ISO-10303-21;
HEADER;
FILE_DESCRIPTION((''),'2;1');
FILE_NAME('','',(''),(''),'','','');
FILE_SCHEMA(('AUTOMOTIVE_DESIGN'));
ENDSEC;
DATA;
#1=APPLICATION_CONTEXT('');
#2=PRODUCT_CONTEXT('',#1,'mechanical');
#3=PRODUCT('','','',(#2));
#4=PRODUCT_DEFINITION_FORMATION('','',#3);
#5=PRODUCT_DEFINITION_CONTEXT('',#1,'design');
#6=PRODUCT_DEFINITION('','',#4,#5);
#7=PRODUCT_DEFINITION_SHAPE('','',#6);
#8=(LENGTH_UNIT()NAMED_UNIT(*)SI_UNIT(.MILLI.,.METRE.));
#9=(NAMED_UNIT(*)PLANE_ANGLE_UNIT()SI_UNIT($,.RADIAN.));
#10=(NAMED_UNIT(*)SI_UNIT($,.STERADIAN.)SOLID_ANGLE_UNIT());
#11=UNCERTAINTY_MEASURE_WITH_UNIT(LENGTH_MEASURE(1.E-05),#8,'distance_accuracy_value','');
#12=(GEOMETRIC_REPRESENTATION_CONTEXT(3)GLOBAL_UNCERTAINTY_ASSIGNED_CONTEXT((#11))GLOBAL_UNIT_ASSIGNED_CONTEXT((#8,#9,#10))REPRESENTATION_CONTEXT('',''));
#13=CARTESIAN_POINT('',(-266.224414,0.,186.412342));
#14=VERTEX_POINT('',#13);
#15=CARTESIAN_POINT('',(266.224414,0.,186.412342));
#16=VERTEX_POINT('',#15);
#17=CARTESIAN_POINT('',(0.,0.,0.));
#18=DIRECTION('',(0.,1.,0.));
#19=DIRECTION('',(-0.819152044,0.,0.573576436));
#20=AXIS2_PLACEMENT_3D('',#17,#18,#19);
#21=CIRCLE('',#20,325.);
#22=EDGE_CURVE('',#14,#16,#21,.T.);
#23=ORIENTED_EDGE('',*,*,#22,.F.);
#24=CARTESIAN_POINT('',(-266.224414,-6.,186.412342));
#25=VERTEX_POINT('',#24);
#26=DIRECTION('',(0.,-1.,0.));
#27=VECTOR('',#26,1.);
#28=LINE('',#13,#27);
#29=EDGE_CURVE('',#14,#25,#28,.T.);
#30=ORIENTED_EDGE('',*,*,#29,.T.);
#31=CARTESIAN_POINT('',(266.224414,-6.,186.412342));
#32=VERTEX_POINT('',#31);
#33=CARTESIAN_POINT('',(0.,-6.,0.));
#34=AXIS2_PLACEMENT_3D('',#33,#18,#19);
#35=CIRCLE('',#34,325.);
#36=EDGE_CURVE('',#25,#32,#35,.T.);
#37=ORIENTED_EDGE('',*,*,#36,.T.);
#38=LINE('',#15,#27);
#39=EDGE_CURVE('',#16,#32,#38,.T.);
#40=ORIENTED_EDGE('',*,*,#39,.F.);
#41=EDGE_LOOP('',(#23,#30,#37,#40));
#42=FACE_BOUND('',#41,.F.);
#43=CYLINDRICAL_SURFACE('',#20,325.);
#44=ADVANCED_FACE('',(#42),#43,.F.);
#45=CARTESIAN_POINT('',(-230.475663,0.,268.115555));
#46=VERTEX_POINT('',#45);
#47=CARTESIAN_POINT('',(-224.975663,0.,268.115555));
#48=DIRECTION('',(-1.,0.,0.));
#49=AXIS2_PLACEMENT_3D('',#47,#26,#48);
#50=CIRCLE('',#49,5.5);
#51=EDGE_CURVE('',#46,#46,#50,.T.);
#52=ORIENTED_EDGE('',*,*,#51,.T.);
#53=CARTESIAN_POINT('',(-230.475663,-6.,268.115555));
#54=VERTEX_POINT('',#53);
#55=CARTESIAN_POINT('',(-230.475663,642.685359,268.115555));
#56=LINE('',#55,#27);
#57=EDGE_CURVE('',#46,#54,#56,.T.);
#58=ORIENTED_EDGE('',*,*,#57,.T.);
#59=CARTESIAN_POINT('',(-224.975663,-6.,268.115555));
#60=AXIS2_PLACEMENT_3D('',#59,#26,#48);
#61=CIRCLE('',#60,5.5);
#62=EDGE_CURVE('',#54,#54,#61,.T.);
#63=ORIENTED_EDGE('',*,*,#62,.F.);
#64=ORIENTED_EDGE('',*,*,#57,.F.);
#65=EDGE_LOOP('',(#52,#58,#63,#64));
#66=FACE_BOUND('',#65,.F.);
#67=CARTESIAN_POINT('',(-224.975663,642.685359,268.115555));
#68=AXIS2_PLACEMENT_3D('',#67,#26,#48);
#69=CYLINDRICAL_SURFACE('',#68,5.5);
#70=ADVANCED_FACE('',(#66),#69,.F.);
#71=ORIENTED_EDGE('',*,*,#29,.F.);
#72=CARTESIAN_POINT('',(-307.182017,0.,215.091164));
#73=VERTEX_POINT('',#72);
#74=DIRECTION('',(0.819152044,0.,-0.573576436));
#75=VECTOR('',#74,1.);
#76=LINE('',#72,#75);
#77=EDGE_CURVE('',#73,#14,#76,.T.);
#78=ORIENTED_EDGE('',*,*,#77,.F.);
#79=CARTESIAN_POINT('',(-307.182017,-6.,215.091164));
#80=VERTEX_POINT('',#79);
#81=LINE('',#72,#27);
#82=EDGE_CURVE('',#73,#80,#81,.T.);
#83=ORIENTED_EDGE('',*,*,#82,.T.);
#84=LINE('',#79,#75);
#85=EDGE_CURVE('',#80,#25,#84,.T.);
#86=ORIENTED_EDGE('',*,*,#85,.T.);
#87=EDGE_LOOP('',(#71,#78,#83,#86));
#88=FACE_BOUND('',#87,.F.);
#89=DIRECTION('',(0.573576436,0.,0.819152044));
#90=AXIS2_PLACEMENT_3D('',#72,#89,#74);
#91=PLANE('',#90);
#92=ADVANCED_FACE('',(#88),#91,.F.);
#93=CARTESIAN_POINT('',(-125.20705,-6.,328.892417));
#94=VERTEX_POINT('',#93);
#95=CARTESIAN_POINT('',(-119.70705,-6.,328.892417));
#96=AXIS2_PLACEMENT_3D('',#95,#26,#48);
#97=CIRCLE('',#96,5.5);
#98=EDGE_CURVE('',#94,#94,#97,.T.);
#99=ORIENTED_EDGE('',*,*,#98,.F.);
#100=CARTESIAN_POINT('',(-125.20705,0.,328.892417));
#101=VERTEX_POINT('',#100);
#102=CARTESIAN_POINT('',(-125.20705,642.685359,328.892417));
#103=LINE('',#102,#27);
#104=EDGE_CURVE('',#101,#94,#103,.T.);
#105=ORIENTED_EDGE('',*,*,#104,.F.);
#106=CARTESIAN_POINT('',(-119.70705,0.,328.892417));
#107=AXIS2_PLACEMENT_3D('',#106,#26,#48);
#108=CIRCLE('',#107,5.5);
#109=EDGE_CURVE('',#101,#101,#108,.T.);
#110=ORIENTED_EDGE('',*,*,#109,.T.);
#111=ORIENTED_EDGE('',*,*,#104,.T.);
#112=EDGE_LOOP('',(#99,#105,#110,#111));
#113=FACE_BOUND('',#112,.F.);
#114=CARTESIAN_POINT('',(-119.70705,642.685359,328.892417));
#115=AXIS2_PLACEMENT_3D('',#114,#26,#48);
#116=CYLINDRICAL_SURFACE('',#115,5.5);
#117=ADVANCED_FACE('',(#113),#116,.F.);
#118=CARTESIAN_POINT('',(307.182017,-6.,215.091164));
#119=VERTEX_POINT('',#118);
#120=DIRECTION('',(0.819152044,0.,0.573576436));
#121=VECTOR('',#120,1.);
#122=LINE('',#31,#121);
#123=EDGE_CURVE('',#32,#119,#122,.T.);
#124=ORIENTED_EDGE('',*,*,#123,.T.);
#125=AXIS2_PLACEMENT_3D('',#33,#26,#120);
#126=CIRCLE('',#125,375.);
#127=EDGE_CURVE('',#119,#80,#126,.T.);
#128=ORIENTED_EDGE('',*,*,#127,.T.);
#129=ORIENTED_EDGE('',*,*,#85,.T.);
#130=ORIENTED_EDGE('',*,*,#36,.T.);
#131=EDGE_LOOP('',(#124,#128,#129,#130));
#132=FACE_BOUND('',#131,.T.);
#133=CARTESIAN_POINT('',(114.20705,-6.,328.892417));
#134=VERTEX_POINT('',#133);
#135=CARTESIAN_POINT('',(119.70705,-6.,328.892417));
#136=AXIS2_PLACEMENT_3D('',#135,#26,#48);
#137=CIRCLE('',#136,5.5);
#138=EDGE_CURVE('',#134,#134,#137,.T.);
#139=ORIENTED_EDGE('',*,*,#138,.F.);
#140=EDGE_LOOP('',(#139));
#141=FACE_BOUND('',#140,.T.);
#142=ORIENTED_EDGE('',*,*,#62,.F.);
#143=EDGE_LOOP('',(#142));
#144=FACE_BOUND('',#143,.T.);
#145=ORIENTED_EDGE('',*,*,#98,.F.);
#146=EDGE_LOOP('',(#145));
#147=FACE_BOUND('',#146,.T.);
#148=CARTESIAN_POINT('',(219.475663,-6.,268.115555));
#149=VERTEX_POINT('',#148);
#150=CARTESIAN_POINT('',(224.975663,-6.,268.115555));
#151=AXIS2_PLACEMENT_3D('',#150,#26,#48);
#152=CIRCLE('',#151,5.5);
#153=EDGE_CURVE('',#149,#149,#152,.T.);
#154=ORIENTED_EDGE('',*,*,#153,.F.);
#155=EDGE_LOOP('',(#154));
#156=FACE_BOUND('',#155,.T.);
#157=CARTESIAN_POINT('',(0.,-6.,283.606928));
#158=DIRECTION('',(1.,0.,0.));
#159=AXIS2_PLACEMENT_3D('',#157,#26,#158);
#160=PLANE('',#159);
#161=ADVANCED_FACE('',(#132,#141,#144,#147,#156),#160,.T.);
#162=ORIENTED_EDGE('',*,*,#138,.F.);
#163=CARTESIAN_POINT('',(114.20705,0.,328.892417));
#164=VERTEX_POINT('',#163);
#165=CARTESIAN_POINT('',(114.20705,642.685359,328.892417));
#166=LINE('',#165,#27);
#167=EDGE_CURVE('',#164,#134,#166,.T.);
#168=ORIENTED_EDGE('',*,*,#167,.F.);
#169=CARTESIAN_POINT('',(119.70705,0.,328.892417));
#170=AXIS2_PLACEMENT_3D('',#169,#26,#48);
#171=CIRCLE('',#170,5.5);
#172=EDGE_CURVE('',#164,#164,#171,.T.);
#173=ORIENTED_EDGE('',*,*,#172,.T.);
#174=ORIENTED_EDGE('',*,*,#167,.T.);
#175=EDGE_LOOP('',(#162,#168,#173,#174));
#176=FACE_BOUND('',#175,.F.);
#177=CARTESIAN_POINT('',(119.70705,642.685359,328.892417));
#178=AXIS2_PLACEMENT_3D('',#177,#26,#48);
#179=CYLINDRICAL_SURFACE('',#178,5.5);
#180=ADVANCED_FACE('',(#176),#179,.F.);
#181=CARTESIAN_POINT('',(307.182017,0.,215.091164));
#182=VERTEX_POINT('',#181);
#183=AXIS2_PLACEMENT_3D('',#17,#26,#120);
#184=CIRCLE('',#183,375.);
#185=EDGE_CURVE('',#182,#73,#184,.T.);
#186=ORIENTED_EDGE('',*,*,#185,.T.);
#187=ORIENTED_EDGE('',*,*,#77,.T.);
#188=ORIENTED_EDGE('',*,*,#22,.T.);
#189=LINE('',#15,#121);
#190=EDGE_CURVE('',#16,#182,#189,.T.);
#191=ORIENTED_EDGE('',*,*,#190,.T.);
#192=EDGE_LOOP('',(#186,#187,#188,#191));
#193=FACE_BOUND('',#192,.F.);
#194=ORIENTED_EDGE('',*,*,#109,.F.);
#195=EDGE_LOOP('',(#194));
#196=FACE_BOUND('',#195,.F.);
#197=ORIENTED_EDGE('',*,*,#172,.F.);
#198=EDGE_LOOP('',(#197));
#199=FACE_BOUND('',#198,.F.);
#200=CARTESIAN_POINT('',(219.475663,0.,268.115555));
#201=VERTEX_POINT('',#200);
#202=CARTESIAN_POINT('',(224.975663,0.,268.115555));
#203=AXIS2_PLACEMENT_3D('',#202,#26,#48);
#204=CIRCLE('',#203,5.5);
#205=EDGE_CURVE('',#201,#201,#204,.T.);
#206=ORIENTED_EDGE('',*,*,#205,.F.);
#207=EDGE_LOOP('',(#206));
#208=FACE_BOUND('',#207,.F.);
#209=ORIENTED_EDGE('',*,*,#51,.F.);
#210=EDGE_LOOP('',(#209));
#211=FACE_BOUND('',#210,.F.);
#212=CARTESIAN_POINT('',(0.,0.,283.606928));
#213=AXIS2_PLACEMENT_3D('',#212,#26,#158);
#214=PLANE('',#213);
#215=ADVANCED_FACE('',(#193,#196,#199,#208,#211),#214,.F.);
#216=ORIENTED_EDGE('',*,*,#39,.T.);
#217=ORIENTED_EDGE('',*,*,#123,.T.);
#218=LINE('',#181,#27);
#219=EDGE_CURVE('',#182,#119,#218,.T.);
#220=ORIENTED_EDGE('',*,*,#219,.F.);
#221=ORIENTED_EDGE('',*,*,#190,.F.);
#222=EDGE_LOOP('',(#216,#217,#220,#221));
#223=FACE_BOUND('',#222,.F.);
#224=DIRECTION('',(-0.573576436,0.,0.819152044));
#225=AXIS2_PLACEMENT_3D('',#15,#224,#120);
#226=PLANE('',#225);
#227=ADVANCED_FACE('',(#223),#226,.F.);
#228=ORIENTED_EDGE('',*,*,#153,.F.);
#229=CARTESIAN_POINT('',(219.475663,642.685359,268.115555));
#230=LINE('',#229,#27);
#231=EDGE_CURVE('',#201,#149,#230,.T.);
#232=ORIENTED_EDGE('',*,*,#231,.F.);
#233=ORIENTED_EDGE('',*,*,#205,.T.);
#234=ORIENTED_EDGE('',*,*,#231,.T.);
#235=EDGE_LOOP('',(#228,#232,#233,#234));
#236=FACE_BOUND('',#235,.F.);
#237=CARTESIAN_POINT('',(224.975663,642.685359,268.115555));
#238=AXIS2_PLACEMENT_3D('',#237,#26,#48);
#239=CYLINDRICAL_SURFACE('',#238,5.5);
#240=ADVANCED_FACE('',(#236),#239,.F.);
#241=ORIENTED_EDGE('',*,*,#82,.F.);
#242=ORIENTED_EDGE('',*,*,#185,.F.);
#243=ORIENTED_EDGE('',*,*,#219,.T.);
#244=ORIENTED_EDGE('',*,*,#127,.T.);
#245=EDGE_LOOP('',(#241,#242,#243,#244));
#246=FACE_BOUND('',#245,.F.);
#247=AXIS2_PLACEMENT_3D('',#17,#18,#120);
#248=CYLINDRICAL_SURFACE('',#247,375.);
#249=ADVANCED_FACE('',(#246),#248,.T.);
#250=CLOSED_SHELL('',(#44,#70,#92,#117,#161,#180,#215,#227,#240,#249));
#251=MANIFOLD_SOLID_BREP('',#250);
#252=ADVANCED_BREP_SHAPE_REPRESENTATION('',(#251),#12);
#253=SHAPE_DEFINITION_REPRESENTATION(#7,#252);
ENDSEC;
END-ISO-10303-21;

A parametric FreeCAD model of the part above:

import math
import FreeCAD as App
import Part
import Sketcher
from FreeCAD import Vector
Q = App.Units.Quantity

doc = App.newDocument("Part")
body = doc.addObject("PartDesign::Body", "Body")

# Sketch on XZ plane
sketch1 = body.newObject("Sketcher::SketchObject", "Sketch")
sketch1.AttachmentSupport = (doc.getObject("XZ_Plane"), [""])
sketch1.MapMode = "FlatFace"
sketch1.addGeometry(Part.LineSegment(Vector(266, 186, 0), Vector(307, 215, 0)), False)
sketch1.addGeometry(Part.ArcOfCircle(Part.Circle(Vector(0, 0, 0), Vector(0, 0, 1), 375), math.radians(35), math.radians(145)), False)
sketch1.addGeometry(Part.LineSegment(Vector(-307, 215, 0), Vector(-266, 186, 0)), False)
sketch1.addGeometry(Part.ArcOfCircle(Part.Circle(Vector(0, 0, 0), Vector(0, 0, 1), 325), math.radians(35), math.radians(145)), False)
sketch1.addConstraint(Sketcher.Constraint("Coincident", 0, 2, 1, 1))
sketch1.addConstraint(Sketcher.Constraint("Coincident", 1, 2, 2, 1))
sketch1.addConstraint(Sketcher.Constraint("Coincident", 2, 2, 3, 2))
sketch1.addConstraint(Sketcher.Constraint("Coincident", 3, 1, 0, 1))
sketch1.addConstraint(Sketcher.Constraint("Coincident", 1, 3, -1, 1))
sketch1.addConstraint(Sketcher.Constraint("Coincident", 3, 3, -1, 1))
sketch1.addConstraint(Sketcher.Constraint("Horizontal", 0, 2, 1, 2))
sketch1.addConstraint(Sketcher.Constraint("Horizontal", 2, 2, 3, 1))
sketch1.addConstraint(Sketcher.Constraint("Radius", 1, Q("375 mm")))
sketch1.addConstraint(Sketcher.Constraint("Radius", 3, Q("325 mm")))
sketch1.addConstraint(Sketcher.Constraint("Angle", 0, Q("35 deg")))
sketch1.addConstraint(Sketcher.Constraint("DistanceY", -1, 1, 2, 2, Q("186.412342 mm")))
pad1 = body.newObject("PartDesign::Pad", "Pad")
pad1.Profile = sketch1
pad1.Length = 6

# Sketch on XZ plane
sketch2 = body.newObject("Sketcher::SketchObject", "Sketch001")
sketch2.AttachmentSupport = (doc.getObject("XZ_Plane"), [""])
sketch2.MapMode = "FlatFace"
sketch2.addGeometry(Part.Circle(Vector(-225, 268, 0), Vector(0, 0, 1), 6), False)
sketch2.addGeometry(Part.Circle(Vector(-120, 329, 0), Vector(0, 0, 1), 6), False)
sketch2.addGeometry(Part.Circle(Vector(120, 329, 0), Vector(0, 0, 1), 6), False)
sketch2.addGeometry(Part.Circle(Vector(225, 268, 0), Vector(0, 0, 1), 6), False)
sketch2.addConstraint(Sketcher.Constraint("Equal", 0, 1))
sketch2.addConstraint(Sketcher.Constraint("Equal", 1, 2))
sketch2.addConstraint(Sketcher.Constraint("Equal", 2, 3))
sketch2.addConstraint(Sketcher.Constraint("Symmetric", 1, 3, 2, 3, -2))
sketch2.addConstraint(Sketcher.Constraint("Symmetric", 0, 3, 3, 3, -2))
sketch2.addConstraint(Sketcher.Constraint("Diameter", 0, Q("11 mm")))
sketch2.addConstraint(Sketcher.Constraint("DistanceX", 1, 3, 2, 3, Q("239.4141 mm")))
sketch2.addConstraint(Sketcher.Constraint("DistanceX", 0, 3, -1, 1, Q("224.975663 mm")))
sketch2.addConstraint(Sketcher.Constraint("DistanceY", -1, 1, 0, 3, Q("268.115555 mm")))
sketch2.addConstraint(Sketcher.Constraint("DistanceY", -1, 1, 1, 3, Q("328.892417 mm")))
doc.recompute()
hole = body.newObject("PartDesign::Hole", "Hole")
hole.Profile = sketch2
hole.ThreadType = "None"
hole.Diameter = 11
hole.DepthType = "ThroughAll"
hole.Reversed = True

doc.recompute()
